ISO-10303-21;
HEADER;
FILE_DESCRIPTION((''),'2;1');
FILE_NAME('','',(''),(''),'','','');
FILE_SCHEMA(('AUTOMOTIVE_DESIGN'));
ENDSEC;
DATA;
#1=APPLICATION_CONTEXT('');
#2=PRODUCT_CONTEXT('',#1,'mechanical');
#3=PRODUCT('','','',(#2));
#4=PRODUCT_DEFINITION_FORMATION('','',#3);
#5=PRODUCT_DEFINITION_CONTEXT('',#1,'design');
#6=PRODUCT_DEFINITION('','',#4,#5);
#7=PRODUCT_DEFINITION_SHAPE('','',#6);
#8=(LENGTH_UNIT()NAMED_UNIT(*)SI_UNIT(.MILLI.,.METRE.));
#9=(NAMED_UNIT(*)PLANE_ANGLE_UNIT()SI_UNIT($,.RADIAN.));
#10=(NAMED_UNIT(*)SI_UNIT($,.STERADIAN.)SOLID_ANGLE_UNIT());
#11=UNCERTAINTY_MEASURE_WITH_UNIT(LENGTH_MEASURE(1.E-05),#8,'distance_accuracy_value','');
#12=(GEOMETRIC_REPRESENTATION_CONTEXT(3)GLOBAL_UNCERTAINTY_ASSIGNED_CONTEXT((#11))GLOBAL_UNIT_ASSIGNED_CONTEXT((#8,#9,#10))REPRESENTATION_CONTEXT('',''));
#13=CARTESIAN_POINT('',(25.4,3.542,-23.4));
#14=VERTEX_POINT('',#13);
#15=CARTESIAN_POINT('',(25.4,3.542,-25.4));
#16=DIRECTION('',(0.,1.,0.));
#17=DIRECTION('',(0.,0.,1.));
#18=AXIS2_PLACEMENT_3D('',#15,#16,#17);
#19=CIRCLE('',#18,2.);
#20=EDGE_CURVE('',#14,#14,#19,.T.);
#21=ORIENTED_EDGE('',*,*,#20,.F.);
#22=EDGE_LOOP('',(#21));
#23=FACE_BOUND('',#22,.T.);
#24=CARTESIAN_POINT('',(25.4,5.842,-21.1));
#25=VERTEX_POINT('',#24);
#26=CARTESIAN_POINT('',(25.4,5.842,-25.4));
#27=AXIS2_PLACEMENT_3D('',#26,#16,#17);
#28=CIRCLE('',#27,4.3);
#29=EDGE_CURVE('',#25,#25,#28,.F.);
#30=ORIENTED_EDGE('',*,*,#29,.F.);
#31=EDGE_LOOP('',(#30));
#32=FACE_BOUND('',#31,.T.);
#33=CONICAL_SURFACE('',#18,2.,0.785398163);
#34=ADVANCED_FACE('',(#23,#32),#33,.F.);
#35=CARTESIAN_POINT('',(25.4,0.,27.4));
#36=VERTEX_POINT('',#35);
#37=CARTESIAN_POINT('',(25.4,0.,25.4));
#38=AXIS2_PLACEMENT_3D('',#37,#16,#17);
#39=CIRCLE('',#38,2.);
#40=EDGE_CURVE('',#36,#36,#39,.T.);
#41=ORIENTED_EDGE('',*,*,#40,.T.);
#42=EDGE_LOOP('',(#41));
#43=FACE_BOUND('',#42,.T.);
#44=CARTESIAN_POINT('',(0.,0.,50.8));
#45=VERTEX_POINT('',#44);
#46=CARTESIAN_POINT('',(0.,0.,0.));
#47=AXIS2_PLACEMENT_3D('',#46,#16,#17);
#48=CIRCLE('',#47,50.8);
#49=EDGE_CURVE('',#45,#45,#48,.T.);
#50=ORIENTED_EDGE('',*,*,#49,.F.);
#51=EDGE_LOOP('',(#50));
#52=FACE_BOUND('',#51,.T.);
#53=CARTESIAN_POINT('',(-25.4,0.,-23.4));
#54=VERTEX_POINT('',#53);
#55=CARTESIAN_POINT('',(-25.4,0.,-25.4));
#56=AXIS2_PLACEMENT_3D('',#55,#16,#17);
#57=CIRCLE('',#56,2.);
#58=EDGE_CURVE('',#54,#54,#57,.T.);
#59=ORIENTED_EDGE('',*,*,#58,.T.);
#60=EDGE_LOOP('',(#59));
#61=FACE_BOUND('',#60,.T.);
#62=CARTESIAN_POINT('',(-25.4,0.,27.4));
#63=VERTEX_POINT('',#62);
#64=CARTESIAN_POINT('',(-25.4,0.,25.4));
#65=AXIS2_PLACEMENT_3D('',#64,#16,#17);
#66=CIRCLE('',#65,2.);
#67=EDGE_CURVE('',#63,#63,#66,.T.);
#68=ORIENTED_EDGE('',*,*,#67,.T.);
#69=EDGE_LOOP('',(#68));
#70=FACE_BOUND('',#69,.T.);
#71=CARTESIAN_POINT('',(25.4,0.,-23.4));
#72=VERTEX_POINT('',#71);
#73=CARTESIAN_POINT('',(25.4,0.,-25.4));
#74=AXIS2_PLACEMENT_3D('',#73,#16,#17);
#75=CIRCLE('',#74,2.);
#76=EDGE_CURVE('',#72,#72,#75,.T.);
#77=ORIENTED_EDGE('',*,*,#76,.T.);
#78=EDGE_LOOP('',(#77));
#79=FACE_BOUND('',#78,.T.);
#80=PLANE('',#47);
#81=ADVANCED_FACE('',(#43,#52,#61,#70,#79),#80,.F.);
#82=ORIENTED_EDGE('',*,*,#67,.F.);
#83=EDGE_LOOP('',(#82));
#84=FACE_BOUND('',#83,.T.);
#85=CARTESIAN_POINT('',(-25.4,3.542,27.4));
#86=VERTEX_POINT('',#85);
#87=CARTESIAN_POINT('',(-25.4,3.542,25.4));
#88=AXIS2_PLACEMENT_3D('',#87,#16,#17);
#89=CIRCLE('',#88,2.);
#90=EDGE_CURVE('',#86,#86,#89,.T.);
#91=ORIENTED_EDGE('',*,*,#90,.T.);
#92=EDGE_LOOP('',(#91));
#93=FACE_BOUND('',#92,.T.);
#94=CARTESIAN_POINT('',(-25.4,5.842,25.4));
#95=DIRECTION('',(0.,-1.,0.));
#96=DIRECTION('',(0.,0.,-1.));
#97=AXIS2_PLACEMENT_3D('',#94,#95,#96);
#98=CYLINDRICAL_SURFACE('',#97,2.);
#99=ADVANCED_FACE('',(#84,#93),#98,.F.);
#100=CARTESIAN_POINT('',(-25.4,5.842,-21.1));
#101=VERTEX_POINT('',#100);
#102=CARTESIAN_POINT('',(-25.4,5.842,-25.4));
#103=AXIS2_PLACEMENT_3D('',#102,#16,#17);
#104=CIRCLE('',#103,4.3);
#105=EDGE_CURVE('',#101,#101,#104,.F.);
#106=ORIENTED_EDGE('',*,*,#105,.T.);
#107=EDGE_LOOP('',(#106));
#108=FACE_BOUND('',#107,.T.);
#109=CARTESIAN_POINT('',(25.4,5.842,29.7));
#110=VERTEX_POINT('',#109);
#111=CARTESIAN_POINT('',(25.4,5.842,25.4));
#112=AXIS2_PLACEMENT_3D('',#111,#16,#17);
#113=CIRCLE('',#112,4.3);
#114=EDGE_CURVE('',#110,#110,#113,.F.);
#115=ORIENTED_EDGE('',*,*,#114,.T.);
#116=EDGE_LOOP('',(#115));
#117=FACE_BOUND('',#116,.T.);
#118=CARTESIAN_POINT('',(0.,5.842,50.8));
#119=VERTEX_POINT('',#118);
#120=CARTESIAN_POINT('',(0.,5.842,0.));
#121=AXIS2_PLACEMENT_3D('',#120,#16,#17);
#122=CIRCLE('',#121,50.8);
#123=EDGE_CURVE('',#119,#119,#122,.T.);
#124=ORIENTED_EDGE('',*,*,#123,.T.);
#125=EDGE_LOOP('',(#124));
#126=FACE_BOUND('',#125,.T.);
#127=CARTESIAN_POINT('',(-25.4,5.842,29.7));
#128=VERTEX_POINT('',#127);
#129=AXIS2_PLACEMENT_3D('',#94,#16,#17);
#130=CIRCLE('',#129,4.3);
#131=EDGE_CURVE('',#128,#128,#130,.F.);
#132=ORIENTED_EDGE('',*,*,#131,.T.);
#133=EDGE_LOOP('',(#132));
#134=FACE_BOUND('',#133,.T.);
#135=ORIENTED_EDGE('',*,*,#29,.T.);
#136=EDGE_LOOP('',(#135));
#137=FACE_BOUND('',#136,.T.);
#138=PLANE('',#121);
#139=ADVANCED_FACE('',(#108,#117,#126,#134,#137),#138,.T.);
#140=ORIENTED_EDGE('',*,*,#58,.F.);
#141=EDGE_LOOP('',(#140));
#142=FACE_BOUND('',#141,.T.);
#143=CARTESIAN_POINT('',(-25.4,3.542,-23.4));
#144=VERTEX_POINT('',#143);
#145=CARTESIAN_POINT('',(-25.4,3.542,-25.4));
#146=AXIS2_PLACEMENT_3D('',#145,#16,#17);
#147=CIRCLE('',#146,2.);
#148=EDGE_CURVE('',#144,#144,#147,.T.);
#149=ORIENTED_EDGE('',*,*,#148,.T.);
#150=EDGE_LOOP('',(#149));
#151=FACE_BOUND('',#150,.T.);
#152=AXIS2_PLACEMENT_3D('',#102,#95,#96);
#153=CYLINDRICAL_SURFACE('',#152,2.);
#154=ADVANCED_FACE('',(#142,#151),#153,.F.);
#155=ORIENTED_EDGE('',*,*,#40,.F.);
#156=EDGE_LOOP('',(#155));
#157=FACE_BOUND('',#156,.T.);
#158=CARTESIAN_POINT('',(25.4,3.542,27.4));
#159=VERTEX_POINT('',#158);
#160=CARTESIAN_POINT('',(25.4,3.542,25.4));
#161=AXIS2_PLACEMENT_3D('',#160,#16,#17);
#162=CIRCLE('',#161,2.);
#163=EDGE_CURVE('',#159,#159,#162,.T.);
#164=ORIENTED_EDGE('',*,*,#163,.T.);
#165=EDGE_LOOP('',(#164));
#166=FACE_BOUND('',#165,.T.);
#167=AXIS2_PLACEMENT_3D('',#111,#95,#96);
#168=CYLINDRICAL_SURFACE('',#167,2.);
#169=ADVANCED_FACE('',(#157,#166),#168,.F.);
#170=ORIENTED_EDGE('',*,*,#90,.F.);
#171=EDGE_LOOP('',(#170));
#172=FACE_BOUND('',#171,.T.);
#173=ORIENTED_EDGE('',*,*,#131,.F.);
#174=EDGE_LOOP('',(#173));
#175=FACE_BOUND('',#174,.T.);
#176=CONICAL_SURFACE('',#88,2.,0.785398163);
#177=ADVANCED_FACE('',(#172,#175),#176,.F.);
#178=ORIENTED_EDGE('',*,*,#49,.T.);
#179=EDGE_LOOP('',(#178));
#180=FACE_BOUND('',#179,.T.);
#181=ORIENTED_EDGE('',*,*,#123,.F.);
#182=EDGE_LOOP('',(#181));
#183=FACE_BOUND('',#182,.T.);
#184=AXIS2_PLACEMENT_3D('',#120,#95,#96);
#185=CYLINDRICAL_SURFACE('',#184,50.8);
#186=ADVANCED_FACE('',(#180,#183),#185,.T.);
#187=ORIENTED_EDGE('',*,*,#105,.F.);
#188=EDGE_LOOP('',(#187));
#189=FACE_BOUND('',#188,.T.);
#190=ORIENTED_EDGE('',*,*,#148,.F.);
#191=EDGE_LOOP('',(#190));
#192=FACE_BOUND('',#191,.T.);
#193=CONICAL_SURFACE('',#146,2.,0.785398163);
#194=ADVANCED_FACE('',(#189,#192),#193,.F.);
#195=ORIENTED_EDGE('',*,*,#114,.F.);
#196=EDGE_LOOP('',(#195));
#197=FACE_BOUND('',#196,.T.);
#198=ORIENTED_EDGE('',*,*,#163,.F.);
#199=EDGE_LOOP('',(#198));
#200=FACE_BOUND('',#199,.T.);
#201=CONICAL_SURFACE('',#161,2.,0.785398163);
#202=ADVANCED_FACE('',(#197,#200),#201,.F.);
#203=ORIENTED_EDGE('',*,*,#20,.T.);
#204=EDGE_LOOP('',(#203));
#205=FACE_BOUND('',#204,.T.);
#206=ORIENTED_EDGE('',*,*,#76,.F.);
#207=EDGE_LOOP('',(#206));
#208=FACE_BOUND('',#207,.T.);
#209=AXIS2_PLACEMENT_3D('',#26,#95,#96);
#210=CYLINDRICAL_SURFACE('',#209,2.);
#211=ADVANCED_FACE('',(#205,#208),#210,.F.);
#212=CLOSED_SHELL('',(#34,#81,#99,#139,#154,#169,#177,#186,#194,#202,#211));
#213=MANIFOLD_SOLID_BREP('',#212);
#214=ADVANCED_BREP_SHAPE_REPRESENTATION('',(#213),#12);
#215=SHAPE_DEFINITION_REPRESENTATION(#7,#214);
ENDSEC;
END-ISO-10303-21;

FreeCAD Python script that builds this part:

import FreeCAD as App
import Part
import Sketcher
from FreeCAD import Vector


def edges_at(feature, points):
    """Names of the edges that pass closest to the given points."""
    edges = feature.Shape.Edges
    near = lambda p: min(range(len(edges)), key=lambda i: edges[i].distToShape(Part.Vertex(*p))[0])
    return sorted({f"Edge{near(p) + 1}" for p in points})

doc = App.newDocument("Part")
body = doc.addObject("PartDesign::Body", "Body")

sketch1 = body.newObject("Sketcher::SketchObject", "Sketch")
sketch1.AttachmentSupport = (doc.getObject("XZ_Plane"), [""])
sketch1.MapMode = "FlatFace"
sketch1.addGeometry(Part.Circle(Vector(0, 0, 0), Vector(0, 0, 1), 50.8), False)
sketch1.addGeometry(Part.Circle(Vector(-25.4, 25.4, 0), Vector(0, 0, 1), 2), False)
sketch1.addGeometry(Part.Circle(Vector(25.4, 25.4, 0), Vector(0, 0, 1), 2), False)
sketch1.addGeometry(Part.Circle(Vector(-25.4, -25.4, 0), Vector(0, 0, 1), 2), False)
sketch1.addGeometry(Part.Circle(Vector(25.4, -25.4, 0), Vector(0, 0, 1), 2), False)
sketch1.addConstraint(Sketcher.Constraint("Coincident", 0, 3, -1, 1))
sketch1.addConstraint(Sketcher.Constraint("Equal", 1, 2))
sketch1.addConstraint(Sketcher.Constraint("Equal", 2, 3))
sketch1.addConstraint(Sketcher.Constraint("Equal", 3, 4))
sketch1.addConstraint(Sketcher.Constraint("Symmetric", 2, 3, 3, 3, -1, 1))
sketch1.addConstraint(Sketcher.Constraint("Symmetric", 1, 3, 4, 3, -1, 1))
sketch1.addConstraint(Sketcher.Constraint("Symmetric", 1, 3, 2, 3, -2))
sketch1.addConstraint(Sketcher.Constraint("Diameter", 1, 4.0))
sketch1.addConstraint(Sketcher.Constraint("Diameter", 0, 101.6))
sketch1.addConstraint(Sketcher.Constraint("DistanceX", 1, 3, -1, 1, 25.4))
sketch1.addConstraint(Sketcher.Constraint("DistanceY", -1, 1, 1, 3, 25.4))
pad1 = body.newObject("PartDesign::Pad", "Pad")
pad1.Profile = sketch1
pad1.Length = 5.842
pad1.Reversed = True
doc.recompute()

chamfer = body.newObject("PartDesign::Chamfer", "Chamfer")
chamfer.Base = (pad1, edges_at(pad1, [
    (23.4, 5.842, -25.4),
    (23.4, 5.842, 25.4),
    (-27.4, 5.842, -25.4),
    (-27.4, 5.842, 25.4),
]))
chamfer.Size = 2.3

doc.recompute()
